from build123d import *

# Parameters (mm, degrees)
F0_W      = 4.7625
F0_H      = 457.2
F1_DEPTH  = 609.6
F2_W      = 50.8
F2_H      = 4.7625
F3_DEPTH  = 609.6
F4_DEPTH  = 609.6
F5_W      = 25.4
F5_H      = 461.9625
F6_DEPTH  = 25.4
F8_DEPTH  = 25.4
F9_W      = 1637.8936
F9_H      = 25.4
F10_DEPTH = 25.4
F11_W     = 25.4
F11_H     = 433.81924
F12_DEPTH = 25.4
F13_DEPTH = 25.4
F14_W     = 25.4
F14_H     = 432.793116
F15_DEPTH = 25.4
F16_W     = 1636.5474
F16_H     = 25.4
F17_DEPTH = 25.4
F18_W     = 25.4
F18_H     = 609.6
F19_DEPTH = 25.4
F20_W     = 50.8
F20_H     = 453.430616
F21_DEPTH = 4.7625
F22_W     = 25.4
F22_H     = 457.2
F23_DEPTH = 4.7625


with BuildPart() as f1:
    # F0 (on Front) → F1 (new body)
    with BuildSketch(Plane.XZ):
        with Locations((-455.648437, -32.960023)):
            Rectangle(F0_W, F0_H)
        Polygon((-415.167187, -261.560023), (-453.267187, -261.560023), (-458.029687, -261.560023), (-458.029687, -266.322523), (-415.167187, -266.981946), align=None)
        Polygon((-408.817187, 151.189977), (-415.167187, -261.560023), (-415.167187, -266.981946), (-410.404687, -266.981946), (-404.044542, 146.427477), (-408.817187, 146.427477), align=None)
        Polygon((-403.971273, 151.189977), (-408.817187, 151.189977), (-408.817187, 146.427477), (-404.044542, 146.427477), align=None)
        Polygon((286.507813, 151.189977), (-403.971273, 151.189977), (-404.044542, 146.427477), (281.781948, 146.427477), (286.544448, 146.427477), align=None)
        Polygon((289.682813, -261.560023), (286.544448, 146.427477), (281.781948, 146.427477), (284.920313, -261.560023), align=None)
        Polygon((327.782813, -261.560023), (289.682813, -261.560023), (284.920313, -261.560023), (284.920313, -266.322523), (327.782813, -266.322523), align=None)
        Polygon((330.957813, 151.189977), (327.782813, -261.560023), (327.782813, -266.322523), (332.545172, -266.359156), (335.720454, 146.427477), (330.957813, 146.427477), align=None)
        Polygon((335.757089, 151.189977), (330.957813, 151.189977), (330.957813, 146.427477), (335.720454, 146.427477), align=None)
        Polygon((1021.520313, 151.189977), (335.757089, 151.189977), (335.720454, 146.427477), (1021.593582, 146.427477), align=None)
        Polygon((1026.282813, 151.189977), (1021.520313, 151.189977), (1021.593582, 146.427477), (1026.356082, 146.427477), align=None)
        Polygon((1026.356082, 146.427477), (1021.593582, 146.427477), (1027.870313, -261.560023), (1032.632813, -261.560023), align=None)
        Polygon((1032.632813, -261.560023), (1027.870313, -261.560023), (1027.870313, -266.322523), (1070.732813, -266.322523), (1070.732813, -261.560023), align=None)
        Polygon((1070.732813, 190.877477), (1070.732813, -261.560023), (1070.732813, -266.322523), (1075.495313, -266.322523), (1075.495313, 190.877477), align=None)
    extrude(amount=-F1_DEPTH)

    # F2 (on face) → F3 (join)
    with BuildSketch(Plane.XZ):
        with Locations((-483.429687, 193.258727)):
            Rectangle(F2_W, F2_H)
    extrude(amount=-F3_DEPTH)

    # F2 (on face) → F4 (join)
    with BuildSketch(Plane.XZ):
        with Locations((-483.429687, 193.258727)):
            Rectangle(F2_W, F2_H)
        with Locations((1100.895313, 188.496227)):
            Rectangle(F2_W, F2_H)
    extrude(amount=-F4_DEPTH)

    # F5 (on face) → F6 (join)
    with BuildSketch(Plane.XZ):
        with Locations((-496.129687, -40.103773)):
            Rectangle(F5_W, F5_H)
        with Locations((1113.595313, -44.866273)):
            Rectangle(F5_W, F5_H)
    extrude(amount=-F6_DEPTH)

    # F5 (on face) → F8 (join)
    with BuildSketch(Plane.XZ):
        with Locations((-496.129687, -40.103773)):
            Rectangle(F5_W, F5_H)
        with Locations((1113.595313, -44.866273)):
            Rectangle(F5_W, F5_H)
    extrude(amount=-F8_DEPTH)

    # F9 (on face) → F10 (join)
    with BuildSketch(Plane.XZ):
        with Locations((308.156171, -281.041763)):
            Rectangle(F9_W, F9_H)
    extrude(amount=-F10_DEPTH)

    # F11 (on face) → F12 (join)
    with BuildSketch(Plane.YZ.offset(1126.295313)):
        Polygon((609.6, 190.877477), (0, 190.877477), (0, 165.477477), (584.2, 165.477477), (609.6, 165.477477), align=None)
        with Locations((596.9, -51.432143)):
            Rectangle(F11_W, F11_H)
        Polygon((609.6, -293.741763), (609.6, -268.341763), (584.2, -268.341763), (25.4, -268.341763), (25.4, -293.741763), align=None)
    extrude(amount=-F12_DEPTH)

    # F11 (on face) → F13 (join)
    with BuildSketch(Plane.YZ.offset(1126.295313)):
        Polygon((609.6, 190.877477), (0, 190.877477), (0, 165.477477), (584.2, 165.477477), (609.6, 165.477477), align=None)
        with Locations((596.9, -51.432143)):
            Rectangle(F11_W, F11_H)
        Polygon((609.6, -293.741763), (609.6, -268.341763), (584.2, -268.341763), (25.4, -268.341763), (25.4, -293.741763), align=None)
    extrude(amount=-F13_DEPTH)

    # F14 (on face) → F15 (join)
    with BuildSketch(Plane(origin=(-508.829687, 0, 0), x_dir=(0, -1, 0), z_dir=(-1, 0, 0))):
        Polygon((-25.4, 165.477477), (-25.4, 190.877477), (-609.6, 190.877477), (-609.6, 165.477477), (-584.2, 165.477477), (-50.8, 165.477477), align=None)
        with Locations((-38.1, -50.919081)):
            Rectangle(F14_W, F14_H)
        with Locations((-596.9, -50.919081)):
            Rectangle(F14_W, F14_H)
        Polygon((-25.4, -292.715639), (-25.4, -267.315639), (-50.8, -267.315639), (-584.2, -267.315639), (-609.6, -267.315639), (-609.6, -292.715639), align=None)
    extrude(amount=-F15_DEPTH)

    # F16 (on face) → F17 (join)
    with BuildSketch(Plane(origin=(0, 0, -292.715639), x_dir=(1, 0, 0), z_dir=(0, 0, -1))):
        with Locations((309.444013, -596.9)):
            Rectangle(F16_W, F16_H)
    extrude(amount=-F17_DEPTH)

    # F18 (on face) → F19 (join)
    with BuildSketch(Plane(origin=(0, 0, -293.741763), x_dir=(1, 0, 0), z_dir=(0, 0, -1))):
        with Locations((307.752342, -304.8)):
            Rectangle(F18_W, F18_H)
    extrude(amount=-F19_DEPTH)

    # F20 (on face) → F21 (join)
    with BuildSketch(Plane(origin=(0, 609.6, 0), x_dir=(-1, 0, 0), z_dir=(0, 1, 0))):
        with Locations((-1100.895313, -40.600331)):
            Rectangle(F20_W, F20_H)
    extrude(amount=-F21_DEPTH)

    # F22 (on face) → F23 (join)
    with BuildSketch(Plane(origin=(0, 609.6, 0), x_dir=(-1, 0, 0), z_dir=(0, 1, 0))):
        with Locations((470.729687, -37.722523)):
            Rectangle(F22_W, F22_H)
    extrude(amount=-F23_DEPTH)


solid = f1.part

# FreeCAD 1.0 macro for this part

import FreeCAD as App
import Part
import Sketcher
Q = App.Units.Quantity


def add_polygon(sketch, points):
    """Adds a closed chain of lines whose ends are joined by coincident constraints."""
    first, n = sketch.GeometryCount, len(points)
    for a, b in zip(points, points[1:] + points[:1]):
        sketch.addGeometry(Part.LineSegment(App.Vector(*a, 0), App.Vector(*b, 0)), False)
    for i in range(n):
        sketch.addConstraint(Sketcher.Constraint("Coincident", first + i, 2, first + (i + 1) % n, 1))

doc = App.newDocument("Part")
body = doc.addObject("PartDesign::Body", "Body")

# Sketch on XZ plane
sketch1 = body.newObject("Sketcher::SketchObject", "Sketch")
sketch1.AttachmentSupport = (doc.getObject("XZ_Plane"), [""])
sketch1.MapMode = "FlatFace"
add_polygon(sketch1, [(-458.029687, 195.639977), (-458.029687, -266.322523), (-415.167187, -266.981946), (-410.404687, -266.981946), (-404.044542, 146.427477), (281.781948, 146.427477), (284.920313, -261.560023), (284.920313, -266.322523), (327.782813, -266.322523), (332.545172, -266.359156), (335.720454, 146.427477), (1021.593582, 146.427477), (1027.870313, -261.560023), (1027.870313, -266.322523), (1075.495313, -266.322523), (1075.495313, 190.877477), (1070.732813, 190.877477), (1070.732813, -261.560023), (1032.632813, -261.560023), (1026.356082, 146.427477), (1026.282813, 151.189977), (330.957813, 151.189977), (327.782813, -261.560023), (289.682813, -261.560023), (286.544448, 146.427477), (286.507813, 151.189977), (-408.817187, 151.189977), (-415.167187, -261.560023), (-453.267187, -261.560023), (-453.267187, 195.639977)])  # lines 0-29
sketch1.addConstraint([
    Sketcher.Constraint("Vertical", 0),
    Sketcher.Constraint("Horizontal", 2),
    Sketcher.Constraint("Horizontal", 4),
    Sketcher.Constraint("Vertical", 6),
    Sketcher.Constraint("Horizontal", 7),
    Sketcher.Constraint("Horizontal", 10),
    Sketcher.Constraint("Vertical", 12),
    Sketcher.Constraint("Horizontal", 13),
    Sketcher.Constraint("Vertical", 14),
    Sketcher.Constraint("Horizontal", 15),
    Sketcher.Constraint("Vertical", 16),
    Sketcher.Constraint("Horizontal", 17),
    Sketcher.Constraint("Horizontal", 20),
    Sketcher.Constraint("Horizontal", 22),
    Sketcher.Constraint("Horizontal", 25),
    Sketcher.Constraint("Horizontal", 27),
    Sketcher.Constraint("Vertical", 28),
    Sketcher.Constraint("Horizontal", 29),
    Sketcher.Constraint("Perpendicular", 1, 3),
    Sketcher.Constraint("Perpendicular", 8, 9),
    Sketcher.Constraint("Parallel", 11, 18),
    Sketcher.Constraint("Parallel", 18, 19),
    Sketcher.Constraint("Parallel", 9, 21),
    Sketcher.Constraint("Parallel", 5, 23),
    Sketcher.Constraint("Parallel", 23, 24),
    Sketcher.Constraint("Parallel", 3, 26),
    Sketcher.Constraint("Horizontal", 0, 2, 6, 2),
    Sketcher.Constraint("Horizontal", 4, 2, 9, 2),
    Sketcher.Constraint("Horizontal", 5, 2, 11, 2),
    Sketcher.Constraint("Horizontal", 7, 2, 12, 2),
    Sketcher.Constraint("Horizontal", 11, 2, 16, 2),
    Sketcher.Constraint("Horizontal", 10, 2, 18, 2),
    Sketcher.Constraint("Horizontal", 17, 2, 21, 2),
    Sketcher.Constraint("Horizontal", 18, 2, 23, 2),
    Sketcher.Constraint("Horizontal", 20, 2, 24, 2),
    Sketcher.Constraint("Horizontal", 22, 2, 26, 2),
    Sketcher.Constraint("Vertical", 7, 2, 21, 2),
    Sketcher.Constraint("Vertical", 1, 2, 26, 2),
    Sketcher.Constraint("Equal", 2, 15),
    Sketcher.Constraint("Equal", 17, 22),
    Sketcher.Constraint("Equal", 20, 25),
    Sketcher.Constraint("Equal", 22, 27),
    Sketcher.Constraint("Equal", 15, 29),
    Sketcher.Constraint("Equal", 29, 6),
    Sketcher.Constraint("Equal", 14, 28),
    Sketcher.Constraint("DistanceY", 14, 1, 14, 2, Q("18 in")),
    Sketcher.Constraint("DistanceX", 17, 2, 17, 1, Q("1.5 in")),
    Sketcher.Constraint("DistanceX", 2, 1, 2, 2, Q("0.1875 in")),
    Sketcher.Constraint("DistanceX", 7, 1, 7, 2, Q("1.6875 in")),
    Sketcher.Constraint("DistanceX", 13, 1, 13, 2, Q("1.875 in")),
    Sketcher.Constraint("DistanceX", 20, 2, 20, 1, Q("27.375 in")),
    Sketcher.Constraint("DistanceY", 0, 2, 3, 2, Q("16.25 in")),
    Sketcher.Constraint("DistanceX", 0, 2, 5, 2, Q("29.25 in")),
    Sketcher.Constraint("DistanceX", 5, 2, 11, 2, Q("29.25 in")),
    Sketcher.Constraint("DistanceX", 19, 2, 15, 2, Q("1.75 in")),
    Sketcher.Constraint("DistanceY", 11, 2, 19, 2, Q("16.25 in")),
    Sketcher.Constraint("DistanceX", 24, 2, 20, 2, Q("1.75 in")),
    Sketcher.Constraint("Distance", 8, Q("0.1875 in")),
    Sketcher.Constraint("DistanceX", 3, 2, -1, 1, 404.044542),
    Sketcher.Constraint("DistanceY", 0, 2, -1, 1, 266.322523),
])
pad1 = body.newObject("PartDesign::Pad", "Pad")
pad1.Profile = sketch1
pad1.Length = Q("24 in")
pad1.Reversed = True

# Sketch on XZ plane
sketch2 = body.newObject("Sketcher::SketchObject", "Sketch001")
sketch2.AttachmentSupport = (doc.getObject("XZ_Plane"), [""])
sketch2.MapMode = "FlatFace"
add_polygon(sketch2, [(-508.829687, 195.639977), (-508.829687, 190.877477), (-458.029687, 190.877477), (-458.029687, 195.639977)])  # lines 0-3
sketch2.addConstraint([
    Sketcher.Constraint("Vertical", 0),
    Sketcher.Constraint("Horizontal", 1),
    Sketcher.Constraint("Vertical", 2),
    Sketcher.Constraint("Horizontal", 3),
    Sketcher.Constraint("DistanceX", 1, 1, 1, 2, Q("2 in")),
    Sketcher.Constraint("DistanceY", 0, 2, 0, 1, Q("0.1875 in")),
    Sketcher.Constraint("DistanceX", 0, 2, -1, 1, 508.829687),
    Sketcher.Constraint("DistanceY", -1, 1, 0, 2, 190.877477),
])
pad2 = body.newObject("PartDesign::Pad", "Pad001")
pad2.Profile = sketch2
pad2.Length = Q("24 in")
pad2.Reversed = True

# Sketch on XZ plane
sketch3 = body.newObject("Sketcher::SketchObject", "Sketch002")
sketch3.AttachmentSupport = (doc.getObject("XZ_Plane"), [""])
sketch3.MapMode = "FlatFace"
add_polygon(sketch3, [(-508.829687, 195.639977), (-508.829687, 190.877477), (-458.029687, 190.877477), (-458.029687, 195.639977)])  # lines 0-3
add_polygon(sketch3, [(1075.495313, 190.877477), (1075.495313, 186.114977), (1126.295313, 186.114977), (1126.295313, 190.877477)])  # lines 4-7
sketch3.addConstraint([
    Sketcher.Constraint("Vertical", 0),
    Sketcher.Constraint("Horizontal", 1),
    Sketcher.Constraint("Vertical", 2),
    Sketcher.Constraint("Horizontal", 3),
    Sketcher.Constraint("Vertical", 4),
    Sketcher.Constraint("Horizontal", 5),
    Sketcher.Constraint("Vertical", 6),
    Sketcher.Constraint("Horizontal", 7),
    Sketcher.Constraint("Horizontal", 1, 2, 6, 2),
    Sketcher.Constraint("Equal", 3, 5),
    Sketcher.Constraint("Equal", 2, 4),
    Sketcher.Constraint("DistanceX", 1, 1, 1, 2, Q("2 in")),
    Sketcher.Constraint("DistanceY", 0, 2, 0, 1, Q("0.1875 in")),
    Sketcher.Constraint("DistanceX", 1, 2, 4, 2, Q("60.375 in")),
    Sketcher.Constraint("DistanceX", 0, 2, -1, 1, 508.829687),
    Sketcher.Constraint("DistanceY", -1, 1, 0, 2, 190.877477),
])
pad3 = body.newObject("PartDesign::Pad", "Pad002")
pad3.Profile = sketch3
pad3.Length = Q("24 in")
pad3.Reversed = True

# Sketch on XZ plane
sketch4 = body.newObject("Sketcher::SketchObject", "Sketch003")
sketch4.AttachmentSupport = (doc.getObject("XZ_Plane"), [""])
sketch4.MapMode = "FlatFace"
add_polygon(sketch4, [(-508.829687, 190.877477), (-508.829687, -271.085023), (-483.429687, -271.085023), (-483.429687, 190.877477)])  # lines 0-3
add_polygon(sketch4, [(1100.895313, 186.114977), (1100.895313, -275.847523), (1126.295313, -275.847523), (1126.295313, 186.114977)])  # lines 4-7
sketch4.addConstraint([
    Sketcher.Constraint("Vertical", 0),
    Sketcher.Constraint("Horizontal", 1),
    Sketcher.Constraint("Vertical", 2),
    Sketcher.Constraint("Horizontal", 3),
    Sketcher.Constraint("Vertical", 4),
    Sketcher.Constraint("Horizontal", 5),
    Sketcher.Constraint("Vertical", 6),
    Sketcher.Constraint("Horizontal", 7),
    Sketcher.Constraint("Equal", 3, 5),
    Sketcher.Constraint("Equal", 2, 4),
    Sketcher.Constraint("DistanceX", 1, 1, 1, 2, Q("1 in")),
    Sketcher.Constraint("DistanceY", 1, 2, 6, 2, Q("18 in")),
    Sketcher.Constraint("DistanceY", 0, 2, 0, 1, Q("18.1875 in")),
    Sketcher.Constraint("DistanceX", 1, 2, 4, 2, Q("62.375 in")),
    Sketcher.Constraint("DistanceX", 0, 2, -1, 1, 508.829687),
    Sketcher.Constraint("DistanceY", 0, 2, -1, 1, 271.085023),
])
pad4 = body.newObject("PartDesign::Pad", "Pad003")
pad4.Profile = sketch4
pad4.Length = Q("1 in")
pad4.Reversed = True

# Sketch on XZ plane
sketch5 = body.newObject("Sketcher::SketchObject", "Sketch004")
sketch5.AttachmentSupport = (doc.getObject("XZ_Plane"), [""])
sketch5.MapMode = "FlatFace"
add_polygon(sketch5, [(-508.829687, 190.877477), (-508.829687, -271.085023), (-483.429687, -271.085023), (-483.429687, 190.877477)])  # lines 0-3
add_polygon(sketch5, [(1100.895313, 186.114977), (1100.895313, -275.847523), (1126.295313, -275.847523), (1126.295313, 186.114977)])  # lines 4-7
sketch5.addConstraint([
    Sketcher.Constraint("Vertical", 0),
    Sketcher.Constraint("Horizontal", 1),
    Sketcher.Constraint("Vertical", 2),
    Sketcher.Constraint("Horizontal", 3),
    Sketcher.Constraint("Vertical", 4),
    Sketcher.Constraint("Horizontal", 5),
    Sketcher.Constraint("Vertical", 6),
    Sketcher.Constraint("Horizontal", 7),
    Sketcher.Constraint("Equal", 3, 5),
    Sketcher.Constraint("Equal", 2, 4),
    Sketcher.Constraint("DistanceX", 1, 1, 1, 2, Q("1 in")),
    Sketcher.Constraint("DistanceY", 1, 2, 6, 2, Q("18 in")),
    Sketcher.Constraint("DistanceY", 0, 2, 0, 1, Q("18.1875 in")),
    Sketcher.Constraint("DistanceX", 1, 2, 4, 2, Q("62.375 in")),
    Sketcher.Constraint("DistanceX", 0, 2, -1, 1, 508.829687),
    Sketcher.Constraint("DistanceY", 0, 2, -1, 1, 271.085023),
])
pad5 = body.newObject("PartDesign::Pad", "Pad004")
pad5.Profile = sketch5
pad5.Length = Q("1 in")
pad5.Reversed = True

# Sketch on XZ plane
sketch6 = body.newObject("Sketcher::SketchObject", "Sketch005")
sketch6.AttachmentSupport = (doc.getObject("XZ_Plane"), [""])
sketch6.MapMode = "FlatFace"
add_polygon(sketch6, [(-510.790629, -268.341763), (-510.790629, -293.741763), (1127.102971, -293.741763), (1127.102971, -268.341763)])  # lines 0-3
sketch6.addConstraint([
    Sketcher.Constraint("Vertical", 0),
    Sketcher.Constraint("Horizontal", 1),
    Sketcher.Constraint("Vertical", 2),
    Sketcher.Constraint("Horizontal", 3),
    Sketcher.Constraint("DistanceY", 0, 2, 0, 1, Q("1 in")),
    Sketcher.Constraint("DistanceX", 1, 1, 1, 2, Q("64.484 in")),
    Sketcher.Constraint("DistanceX", 0, 2, -1, 1, 510.790629),
    Sketcher.Constraint("DistanceY", 0, 2, -1, 1, 293.741763),
])
pad6 = body.newObject("PartDesign::Pad", "Pad005")
pad6.Profile = sketch6
pad6.Length = Q("1 in")
pad6.Reversed = True

# Sketch on YZ plane
sketch7 = body.newObject("Sketcher::SketchObject", "Sketch006")
sketch7.AttachmentSupport = (doc.getObject("YZ_Plane"), [""])
sketch7.MapMode = "FlatFace"
sketch7.AttachmentOffset = App.Placement(App.Vector(0, 0, 1126.295313), App.Rotation())
add_polygon(sketch7, [(609.6, 190.877477), (0, 190.877477), (0, 165.477477), (584.2, 165.477477), (584.2, -268.341763), (25.4, -268.341763), (25.4, -293.741763), (609.6, -293.741763)])  # lines 0-7
sketch7.addConstraint([
    Sketcher.Constraint("Horizontal", 0),
    Sketcher.Constraint("Vertical", 1),
    Sketcher.Constraint("Horizontal", 2),
    Sketcher.Constraint("Vertical", 3),
    Sketcher.Constraint("Horizontal", 4),
    Sketcher.Constraint("Vertical", 5),
    Sketcher.Constraint("Horizontal", 6),
    Sketcher.Constraint("Vertical", 7),
    Sketcher.Constraint("PointOnObject", 0, 2, -2),
    Sketcher.Constraint("Equal", 2, 6),
    Sketcher.Constraint("Equal", 1, 5),
    Sketcher.Constraint("DistanceX", 0, 2, 0, 1, Q("24 in")),
    Sketcher.Constraint("DistanceX", 2, 1, 2, 2, Q("23 in")),
    Sketcher.Constraint("DistanceY", 1, 2, 1, 1, Q("1 in")),
    Sketcher.Constraint("DistanceY", 3, 2, 3, 1, 433.81924),
    Sketcher.Constraint("DistanceY", -1, 1, 0, 2, 190.877477),
])
pad7 = body.newObject("PartDesign::Pad", "Pad006")
pad7.Profile = sketch7
pad7.Length = Q("1 in")
pad7.Reversed = True

# Sketch on YZ plane
sketch8 = body.newObject("Sketcher::SketchObject", "Sketch007")
sketch8.AttachmentSupport = (doc.getObject("YZ_Plane"), [""])
sketch8.MapMode = "FlatFace"
sketch8.AttachmentOffset = App.Placement(App.Vector(0, 0, 1126.295313), App.Rotation())
add_polygon(sketch8, [(609.6, 190.877477), (0, 190.877477), (0, 165.477477), (584.2, 165.477477), (584.2, -268.341763), (25.4, -268.341763), (25.4, -293.741763), (609.6, -293.741763)])  # lines 0-7
sketch8.addConstraint([
    Sketcher.Constraint("Horizontal", 0),
    Sketcher.Constraint("Vertical", 1),
    Sketcher.Constraint("Horizontal", 2),
    Sketcher.Constraint("Vertical", 3),
    Sketcher.Constraint("Horizontal", 4),
    Sketcher.Constraint("Vertical", 5),
    Sketcher.Constraint("Horizontal", 6),
    Sketcher.Constraint("Vertical", 7),
    Sketcher.Constraint("PointOnObject", 0, 2, -2),
    Sketcher.Constraint("Equal", 2, 6),
    Sketcher.Constraint("Equal", 1, 5),
    Sketcher.Constraint("DistanceX", 0, 2, 0, 1, Q("24 in")),
    Sketcher.Constraint("DistanceX", 2, 1, 2, 2, Q("23 in")),
    Sketcher.Constraint("DistanceY", 1, 2, 1, 1, Q("1 in")),
    Sketcher.Constraint("DistanceY", 3, 2, 3, 1, 433.81924),
    Sketcher.Constraint("DistanceY", -1, 1, 0, 2, 190.877477),
])
pad8 = body.newObject("PartDesign::Pad", "Pad007")
pad8.Profile = sketch8
pad8.Length = Q("1 in")
pad8.Reversed = True

# Sketch on YZ plane
sketch9 = body.newObject("Sketcher::SketchObject", "Sketch008")
sketch9.AttachmentSupport = (doc.getObject("YZ_Plane"), [""])
sketch9.MapMode = "FlatFace"
sketch9.AttachmentOffset = App.Placement(App.Vector(0, 0, -508.829687), App.Rotation())
add_polygon(sketch9, [(25.4, 190.877477), (609.6, 190.877477), (609.6, -292.715639), (25.4, -292.715639)])  # lines 0-3
add_polygon(sketch9, [(584.2, -267.315639), (584.2, 165.477477), (50.8, 165.477477), (50.8, -267.315639)])  # lines 4-7
sketch9.addConstraint([
    Sketcher.Constraint("Horizontal", 0),
    Sketcher.Constraint("Vertical", 1),
    Sketcher.Constraint("Horizontal", 2),
    Sketcher.Constraint("Vertical", 3),
    Sketcher.Constraint("Vertical", 4),
    Sketcher.Constraint("Horizontal", 5),
    Sketcher.Constraint("Vertical", 6),
    Sketcher.Constraint("Horizontal", 7),
    Sketcher.Constraint("DistanceX", 0, 1, 0, 2, Q("23 in")),
    Sketcher.Constraint("DistanceX", 5, 2, 5, 1, Q("21 in")),
    Sketcher.Constraint("DistanceX", -1, 1, 0, 2, Q("24 in")),
    Sketcher.Constraint("DistanceX", -1, 1, 4, 2, Q("23 in")),
    Sketcher.Constraint("DistanceY", 4, 2, 0, 2, Q("1 in")),
    Sketcher.Constraint("DistanceY", 2, 2, 6, 2, Q("1 in")),
    Sketcher.Constraint("DistanceY", 1, 2, 1, 1, 483.593116),
    Sketcher.Constraint("DistanceY", 1, 2, -1, 1, 292.715639),
])
pad9 = body.newObject("PartDesign::Pad", "Pad008")
pad9.Profile = sketch9
pad9.Length = Q("1 in")

# Sketch on XY plane
sketch10 = body.newObject("Sketcher::SketchObject", "Sketch009")
sketch10.AttachmentSupport = (doc.getObject("XY_Plane"), [""])
sketch10.MapMode = "FlatFace"
sketch10.AttachmentOffset = App.Placement(App.Vector(0, 0, -292.715639), App.Rotation())
add_polygon(sketch10, [(-508.829687, 584.2), (-508.829687, 609.6), (1127.717713, 609.6), (1127.717713, 584.2)])  # lines 0-3
sketch10.addConstraint([
    Sketcher.Constraint("Vertical", 0),
    Sketcher.Constraint("Horizontal", 1),
    Sketcher.Constraint("Vertical", 2),
    Sketcher.Constraint("Horizontal", 3),
    Sketcher.Constraint("DistanceY", 0, 1, 0, 2, Q("1 in")),
    Sketcher.Constraint("DistanceY", -1, 1, 0, 2, Q("24 in")),
    Sketcher.Constraint("DistanceX", 1, 1, 1, 2, Q("64.431 in")),
    Sketcher.Constraint("DistanceX", 0, 2, -1, 1, 508.829687),
])
pad10 = body.newObject("PartDesign::Pad", "Pad009")
pad10.Profile = sketch10
pad10.Length = Q("1 in")

# Sketch on XY plane
sketch11 = body.newObject("Sketcher::SketchObject", "Sketch010")
sketch11.AttachmentSupport = (doc.getObject("XY_Plane"), [""])
sketch11.MapMode = "FlatFace"
sketch11.AttachmentOffset = App.Placement(App.Vector(0, 0, -293.741763), App.Rotation())
add_polygon(sketch11, [(295.052342, 0), (295.052342, 609.6), (320.452342, 609.6), (320.452342, 0)])  # lines 0-3
sketch11.addConstraint([
    Sketcher.Constraint("Vertical", 0),
    Sketcher.Constraint("Horizontal", 1),
    Sketcher.Constraint("Vertical", 2),
    Sketcher.Constraint("Horizontal", 3),
    Sketcher.Constraint("PointOnObject", 2, 2, -1),
    Sketcher.Constraint("DistanceX", 1, 1, 1, 2, Q("1 in")),
    Sketcher.Constraint("DistanceY", 0, 1, 0, 2, Q("24 in")),
    Sketcher.Constraint("DistanceX", -1, 1, 0, 2, 295.052342),
])
pad11 = body.newObject("PartDesign::Pad", "Pad010")
pad11.Profile = sketch11
pad11.Length = Q("1 in")

# Sketch on XZ plane
sketch12 = body.newObject("Sketcher::SketchObject", "Sketch011")
sketch12.AttachmentSupport = (doc.getObject("XZ_Plane"), [""])
sketch12.MapMode = "FlatFace"
sketch12.AttachmentOffset = App.Placement(App.Vector(0, 0, -24 * 25.4), App.Rotation())
add_polygon(sketch12, [(1126.295313, 186.114977), (1126.295313, -267.315639), (1075.495313, -267.315639), (1075.495313, 186.114977)])  # lines 0-3
sketch12.addConstraint([
    Sketcher.Constraint("Vertical", 0),
    Sketcher.Constraint("Horizontal", 1),
    Sketcher.Constraint("Vertical", 2),
    Sketcher.Constraint("Horizontal", 3),
    Sketcher.Constraint("DistanceX", 1, 2, 1, 1, Q("2 in")),
    Sketcher.Constraint("DistanceY", 0, 2, 0, 1, 453.430616),
    Sketcher.Constraint("DistanceY", 0, 2, -1, 1, 267.315639),
    Sketcher.Constraint("DistanceX", -1, 1, 0, 2, 1126.295313),
])
pad12 = body.newObject("PartDesign::Pad", "Pad011")
pad12.Profile = sketch12
pad12.Length = Q("0.1875 in")

# Sketch on XZ plane
sketch13 = body.newObject("Sketcher::SketchObject", "Sketch012")
sketch13.AttachmentSupport = (doc.getObject("XZ_Plane"), [""])
sketch13.MapMode = "FlatFace"
sketch13.AttachmentOffset = App.Placement(App.Vector(0, 0, -24 * 25.4), App.Rotation())
add_polygon(sketch13, [(-458.029687, 190.877477), (-458.029687, -266.322523), (-483.429687, -266.322523), (-483.429687, 190.877477)])  # lines 0-3
sketch13.addConstraint([
    Sketcher.Constraint("Vertical", 0),
    Sketcher.Constraint("Horizontal", 1),
    Sketcher.Constraint("Vertical", 2),
    Sketcher.Constraint("Horizontal", 3),
    Sketcher.Constraint("DistanceX", 1, 2, 1, 1, Q("1 in")),
    Sketcher.Constraint("DistanceY", 0, 2, 0, 1, Q("18 in")),
    Sketcher.Constraint("DistanceX", 0, 2, -1, 1, 458.029687),
    Sketcher.Constraint("DistanceY", 0, 2, -1, 1, 266.322523),
])
pad13 = body.newObject("PartDesign::Pad", "Pad012")
pad13.Profile = sketch13
pad13.Length = Q("0.1875 in")

doc.recompute()
